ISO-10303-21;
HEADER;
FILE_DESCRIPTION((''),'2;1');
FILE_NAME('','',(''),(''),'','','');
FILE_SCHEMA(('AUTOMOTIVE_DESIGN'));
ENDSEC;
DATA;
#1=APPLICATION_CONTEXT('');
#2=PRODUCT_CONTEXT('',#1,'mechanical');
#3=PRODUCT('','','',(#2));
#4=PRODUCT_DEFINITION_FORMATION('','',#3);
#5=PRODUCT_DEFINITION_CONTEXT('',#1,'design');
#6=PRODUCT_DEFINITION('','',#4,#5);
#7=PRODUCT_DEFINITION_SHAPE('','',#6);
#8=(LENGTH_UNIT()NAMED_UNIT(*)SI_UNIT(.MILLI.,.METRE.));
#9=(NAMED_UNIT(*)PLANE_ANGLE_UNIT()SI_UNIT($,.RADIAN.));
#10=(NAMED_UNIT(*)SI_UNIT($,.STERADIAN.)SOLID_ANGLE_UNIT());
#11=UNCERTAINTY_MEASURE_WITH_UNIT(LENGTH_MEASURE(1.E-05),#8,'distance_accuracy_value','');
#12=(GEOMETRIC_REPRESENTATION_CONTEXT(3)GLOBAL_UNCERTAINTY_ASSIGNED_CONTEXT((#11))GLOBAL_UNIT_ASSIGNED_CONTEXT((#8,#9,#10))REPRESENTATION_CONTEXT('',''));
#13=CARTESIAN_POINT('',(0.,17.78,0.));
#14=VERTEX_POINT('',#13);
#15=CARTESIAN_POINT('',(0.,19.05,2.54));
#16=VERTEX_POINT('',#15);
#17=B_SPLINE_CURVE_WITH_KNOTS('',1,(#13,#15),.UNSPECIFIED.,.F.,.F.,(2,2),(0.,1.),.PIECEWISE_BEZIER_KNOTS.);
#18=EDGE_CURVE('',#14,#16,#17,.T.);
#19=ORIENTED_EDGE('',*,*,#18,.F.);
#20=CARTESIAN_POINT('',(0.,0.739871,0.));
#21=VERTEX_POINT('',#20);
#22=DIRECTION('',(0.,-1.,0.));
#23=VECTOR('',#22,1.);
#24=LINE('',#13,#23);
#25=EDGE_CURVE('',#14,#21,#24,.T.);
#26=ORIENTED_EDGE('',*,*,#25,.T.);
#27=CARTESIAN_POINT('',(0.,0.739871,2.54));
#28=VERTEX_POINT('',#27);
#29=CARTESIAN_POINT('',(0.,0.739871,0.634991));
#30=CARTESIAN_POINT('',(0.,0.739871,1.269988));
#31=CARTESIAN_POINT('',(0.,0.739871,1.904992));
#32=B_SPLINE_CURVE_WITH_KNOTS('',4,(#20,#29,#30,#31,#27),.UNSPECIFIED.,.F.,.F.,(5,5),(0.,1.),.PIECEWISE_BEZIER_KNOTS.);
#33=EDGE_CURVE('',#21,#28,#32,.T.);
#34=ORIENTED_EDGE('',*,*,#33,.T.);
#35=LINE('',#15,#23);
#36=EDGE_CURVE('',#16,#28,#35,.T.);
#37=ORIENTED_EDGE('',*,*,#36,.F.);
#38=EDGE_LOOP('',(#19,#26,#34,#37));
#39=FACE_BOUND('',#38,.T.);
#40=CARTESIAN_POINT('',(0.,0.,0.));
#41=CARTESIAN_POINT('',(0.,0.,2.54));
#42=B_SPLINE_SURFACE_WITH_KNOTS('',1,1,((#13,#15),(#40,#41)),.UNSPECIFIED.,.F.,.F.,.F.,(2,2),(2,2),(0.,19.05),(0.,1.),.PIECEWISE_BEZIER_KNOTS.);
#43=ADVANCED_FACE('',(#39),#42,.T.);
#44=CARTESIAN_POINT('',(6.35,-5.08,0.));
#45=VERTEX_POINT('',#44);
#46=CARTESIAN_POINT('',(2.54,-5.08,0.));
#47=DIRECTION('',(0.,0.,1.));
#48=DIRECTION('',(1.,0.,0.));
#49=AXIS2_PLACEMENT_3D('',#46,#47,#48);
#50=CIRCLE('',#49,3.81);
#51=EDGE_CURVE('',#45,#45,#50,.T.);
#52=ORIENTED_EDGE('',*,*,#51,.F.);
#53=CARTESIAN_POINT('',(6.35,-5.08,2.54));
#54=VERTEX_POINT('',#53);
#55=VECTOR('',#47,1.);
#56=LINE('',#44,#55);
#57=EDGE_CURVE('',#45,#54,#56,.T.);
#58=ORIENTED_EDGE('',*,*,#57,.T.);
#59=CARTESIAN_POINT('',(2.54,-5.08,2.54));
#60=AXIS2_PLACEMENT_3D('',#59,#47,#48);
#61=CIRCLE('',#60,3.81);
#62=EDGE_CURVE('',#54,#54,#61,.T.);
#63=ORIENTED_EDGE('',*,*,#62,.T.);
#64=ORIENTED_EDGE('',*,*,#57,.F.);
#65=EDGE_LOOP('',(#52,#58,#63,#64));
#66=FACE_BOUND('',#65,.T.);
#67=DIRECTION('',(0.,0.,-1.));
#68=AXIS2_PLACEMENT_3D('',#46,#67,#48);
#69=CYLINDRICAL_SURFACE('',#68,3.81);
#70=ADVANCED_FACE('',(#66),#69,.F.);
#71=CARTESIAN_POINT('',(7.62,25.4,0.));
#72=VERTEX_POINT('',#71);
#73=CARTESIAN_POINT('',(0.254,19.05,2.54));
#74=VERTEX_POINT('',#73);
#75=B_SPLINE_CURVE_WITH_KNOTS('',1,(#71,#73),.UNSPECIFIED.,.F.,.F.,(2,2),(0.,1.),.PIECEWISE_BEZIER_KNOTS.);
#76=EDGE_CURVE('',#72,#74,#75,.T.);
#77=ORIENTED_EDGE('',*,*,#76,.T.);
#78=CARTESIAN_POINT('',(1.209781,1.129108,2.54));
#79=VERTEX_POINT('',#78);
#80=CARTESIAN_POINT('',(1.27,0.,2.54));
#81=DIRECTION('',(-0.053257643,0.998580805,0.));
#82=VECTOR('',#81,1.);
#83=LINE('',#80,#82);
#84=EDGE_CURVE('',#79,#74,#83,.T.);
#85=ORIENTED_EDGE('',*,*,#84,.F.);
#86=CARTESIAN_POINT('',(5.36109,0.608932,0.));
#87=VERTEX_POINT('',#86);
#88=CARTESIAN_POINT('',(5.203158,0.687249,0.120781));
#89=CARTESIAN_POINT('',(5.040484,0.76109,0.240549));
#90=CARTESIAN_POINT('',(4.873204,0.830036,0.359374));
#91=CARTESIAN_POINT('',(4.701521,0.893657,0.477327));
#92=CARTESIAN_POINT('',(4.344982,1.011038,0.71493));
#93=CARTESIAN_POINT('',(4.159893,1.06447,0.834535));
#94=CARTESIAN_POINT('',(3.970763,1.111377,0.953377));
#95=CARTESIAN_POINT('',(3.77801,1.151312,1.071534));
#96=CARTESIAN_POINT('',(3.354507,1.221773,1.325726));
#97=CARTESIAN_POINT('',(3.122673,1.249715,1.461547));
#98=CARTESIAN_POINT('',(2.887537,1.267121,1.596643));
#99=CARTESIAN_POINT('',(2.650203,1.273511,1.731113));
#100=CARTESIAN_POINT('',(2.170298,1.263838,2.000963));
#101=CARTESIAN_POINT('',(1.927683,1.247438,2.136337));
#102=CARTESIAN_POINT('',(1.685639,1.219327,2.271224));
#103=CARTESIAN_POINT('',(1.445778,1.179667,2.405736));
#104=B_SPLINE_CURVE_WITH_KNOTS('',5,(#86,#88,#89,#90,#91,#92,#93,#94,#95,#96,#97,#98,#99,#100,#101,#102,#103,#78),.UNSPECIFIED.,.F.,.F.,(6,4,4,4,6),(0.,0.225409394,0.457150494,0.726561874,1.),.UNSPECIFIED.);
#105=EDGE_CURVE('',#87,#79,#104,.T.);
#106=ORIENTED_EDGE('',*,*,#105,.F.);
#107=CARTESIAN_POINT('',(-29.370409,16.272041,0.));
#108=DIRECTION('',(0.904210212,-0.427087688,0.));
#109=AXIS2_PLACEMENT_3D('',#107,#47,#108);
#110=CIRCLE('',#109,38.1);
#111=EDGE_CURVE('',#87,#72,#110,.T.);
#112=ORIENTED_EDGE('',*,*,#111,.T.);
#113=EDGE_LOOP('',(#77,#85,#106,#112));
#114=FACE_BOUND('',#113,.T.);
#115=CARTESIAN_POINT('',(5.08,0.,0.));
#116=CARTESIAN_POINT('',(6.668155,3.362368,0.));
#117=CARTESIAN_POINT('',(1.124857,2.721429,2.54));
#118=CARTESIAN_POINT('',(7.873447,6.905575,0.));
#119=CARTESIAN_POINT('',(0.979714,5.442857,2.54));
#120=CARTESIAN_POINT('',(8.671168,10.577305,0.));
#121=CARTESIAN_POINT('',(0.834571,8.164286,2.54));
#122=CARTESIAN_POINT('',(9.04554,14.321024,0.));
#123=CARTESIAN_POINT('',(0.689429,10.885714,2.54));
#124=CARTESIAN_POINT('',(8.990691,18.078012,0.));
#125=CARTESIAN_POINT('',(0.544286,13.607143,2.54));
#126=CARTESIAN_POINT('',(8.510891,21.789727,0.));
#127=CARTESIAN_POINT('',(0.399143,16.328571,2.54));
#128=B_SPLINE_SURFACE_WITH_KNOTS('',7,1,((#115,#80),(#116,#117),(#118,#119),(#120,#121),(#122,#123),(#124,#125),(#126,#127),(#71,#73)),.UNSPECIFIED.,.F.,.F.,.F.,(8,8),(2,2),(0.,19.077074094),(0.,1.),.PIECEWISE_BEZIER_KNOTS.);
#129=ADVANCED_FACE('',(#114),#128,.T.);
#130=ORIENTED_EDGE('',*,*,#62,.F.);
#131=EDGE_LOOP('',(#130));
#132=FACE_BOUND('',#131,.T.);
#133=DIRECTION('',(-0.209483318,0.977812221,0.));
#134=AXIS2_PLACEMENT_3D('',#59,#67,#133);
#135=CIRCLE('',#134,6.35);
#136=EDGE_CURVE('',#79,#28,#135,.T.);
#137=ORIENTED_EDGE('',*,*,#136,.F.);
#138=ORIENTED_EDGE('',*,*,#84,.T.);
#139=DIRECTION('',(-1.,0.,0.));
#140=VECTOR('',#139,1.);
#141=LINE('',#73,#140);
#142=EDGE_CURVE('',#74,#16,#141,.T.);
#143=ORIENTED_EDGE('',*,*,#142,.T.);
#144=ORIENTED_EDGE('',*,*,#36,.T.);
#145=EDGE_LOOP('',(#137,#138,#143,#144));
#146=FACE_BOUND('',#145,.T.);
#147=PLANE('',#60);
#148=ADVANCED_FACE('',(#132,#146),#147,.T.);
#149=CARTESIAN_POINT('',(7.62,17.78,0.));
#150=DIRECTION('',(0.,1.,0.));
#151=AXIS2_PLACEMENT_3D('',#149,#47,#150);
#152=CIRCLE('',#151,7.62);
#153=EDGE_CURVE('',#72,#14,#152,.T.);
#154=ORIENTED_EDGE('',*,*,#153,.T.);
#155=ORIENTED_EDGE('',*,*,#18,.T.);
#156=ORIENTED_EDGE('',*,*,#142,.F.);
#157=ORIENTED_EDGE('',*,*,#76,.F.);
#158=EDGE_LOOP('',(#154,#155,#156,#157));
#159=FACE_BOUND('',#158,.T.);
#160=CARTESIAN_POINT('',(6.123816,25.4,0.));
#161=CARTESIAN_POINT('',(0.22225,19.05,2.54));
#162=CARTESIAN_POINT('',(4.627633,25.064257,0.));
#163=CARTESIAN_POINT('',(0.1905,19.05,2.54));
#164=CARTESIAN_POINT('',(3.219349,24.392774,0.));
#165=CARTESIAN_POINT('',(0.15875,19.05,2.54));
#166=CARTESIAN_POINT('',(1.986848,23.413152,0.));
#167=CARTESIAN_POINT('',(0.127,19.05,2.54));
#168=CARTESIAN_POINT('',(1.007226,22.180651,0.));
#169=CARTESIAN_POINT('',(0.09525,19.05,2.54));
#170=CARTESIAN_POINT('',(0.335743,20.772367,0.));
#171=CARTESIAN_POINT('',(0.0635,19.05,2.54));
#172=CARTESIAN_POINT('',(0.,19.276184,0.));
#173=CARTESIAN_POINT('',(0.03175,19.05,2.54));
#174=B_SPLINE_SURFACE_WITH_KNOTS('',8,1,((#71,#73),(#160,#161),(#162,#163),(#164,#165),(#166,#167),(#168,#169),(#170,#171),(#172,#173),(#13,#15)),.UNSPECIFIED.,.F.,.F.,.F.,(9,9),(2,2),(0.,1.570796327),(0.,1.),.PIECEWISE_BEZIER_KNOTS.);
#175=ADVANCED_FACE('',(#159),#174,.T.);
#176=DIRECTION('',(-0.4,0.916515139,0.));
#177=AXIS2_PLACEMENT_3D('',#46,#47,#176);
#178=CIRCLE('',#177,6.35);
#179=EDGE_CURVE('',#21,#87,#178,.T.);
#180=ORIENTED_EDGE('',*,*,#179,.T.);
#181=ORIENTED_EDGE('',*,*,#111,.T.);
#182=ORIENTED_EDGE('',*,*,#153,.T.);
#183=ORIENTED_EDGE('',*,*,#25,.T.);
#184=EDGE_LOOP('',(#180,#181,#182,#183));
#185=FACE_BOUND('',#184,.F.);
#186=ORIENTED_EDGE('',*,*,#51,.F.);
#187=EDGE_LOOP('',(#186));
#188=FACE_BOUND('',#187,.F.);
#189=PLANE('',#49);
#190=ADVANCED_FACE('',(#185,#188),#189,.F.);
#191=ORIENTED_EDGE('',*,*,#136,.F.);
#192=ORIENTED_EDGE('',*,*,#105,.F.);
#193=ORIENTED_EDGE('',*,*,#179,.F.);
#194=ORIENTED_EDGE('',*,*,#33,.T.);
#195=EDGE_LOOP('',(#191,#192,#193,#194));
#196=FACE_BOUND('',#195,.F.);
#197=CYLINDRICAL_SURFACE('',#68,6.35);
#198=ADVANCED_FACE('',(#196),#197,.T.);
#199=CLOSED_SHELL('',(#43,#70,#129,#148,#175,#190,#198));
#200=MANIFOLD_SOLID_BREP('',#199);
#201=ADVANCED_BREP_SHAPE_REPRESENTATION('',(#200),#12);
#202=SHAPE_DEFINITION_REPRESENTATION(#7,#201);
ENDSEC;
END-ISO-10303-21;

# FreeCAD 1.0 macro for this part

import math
import FreeCAD as App
import Part
import Sketcher
from FreeCAD import Vector
Q = App.Units.Quantity

doc = App.newDocument("Part")
params = doc.addObject("Spreadsheet::Sheet", "Params")
for row, (alias, value) in enumerate([
    ("sketch1_radius", "1.5 in"),
    ("sketch1_radius2", "0.3 in"),
    ("sketch1_width", "0.2 in"),
    ("sketch1_height", "0.7 in"),
    ("sketch2_width", "0.05 in"),
    ("sketch2_width2", "0.01 in"),
    ("sketch2_height", "0.75 in"),
    ("sketch3_diameter", "0.5 in"),
    ("sketch3_diameter2", "0.3 in"),
    ("pad1_length", "0.1 in"),
], start=1):
    params.set(f"A{row}", alias)
    params.set(f"B{row}", "=" + value)
    params.setAlias(f"B{row}", alias)

body = doc.addObject("PartDesign::Body", "Body")

# Sketch on XY plane
sketch1 = body.newObject("Sketcher::SketchObject", "Sketch")
sketch1.AttachmentSupport = (doc.getObject("XY_Plane"), [""])
sketch1.MapMode = "FlatFace"
sketch1.addGeometry([
    Part.LineSegment(Vector(0, 18, 0), Vector(0, 0, 0)),
    Part.LineSegment(Vector(0, 0, 0), Vector(5, 0, 0)),
    Part.ArcOfCircle(Part.Circle(Vector(-29, 16, 0), Vector(0, 0, 1), 38), math.radians(-25), math.radians(14)),
    Part.ArcOfCircle(Part.Circle(Vector(8, 18, 0), Vector(0, 0, 1), 8), math.radians(90), math.radians(180)),
], False)
sketch1.addConstraint([
    Sketcher.Constraint("Coincident", 0, 2, 1, 1),
    Sketcher.Constraint("Coincident", 1, 2, 2, 1),
    Sketcher.Constraint("Coincident", 2, 2, 3, 1),
    Sketcher.Constraint("Tangent", 3, 2, 0, 1),
    Sketcher.Constraint("Vertical", 0),
    Sketcher.Constraint("Horizontal", 1),
    Sketcher.Constraint("Coincident", 0, 2, -1, 1),
    Sketcher.Constraint("Vertical", 3, 3, 2, 2),
    Sketcher.Constraint("Radius", 2, Q("1.5 in")),
    Sketcher.Constraint("Radius", 3, Q("0.3 in")),
    Sketcher.Constraint("DistanceX", 1, 1, 1, 2, Q("0.2 in")),
    Sketcher.Constraint("DistanceY", 0, 2, 0, 1, Q("0.7 in")),
])
sketch1.setExpression("Constraints[8]", "Params.sketch1_radius")
sketch1.setExpression("Constraints[9]", "Params.sketch1_radius2")
sketch1.setExpression("Constraints[10]", "Params.sketch1_width")
sketch1.setExpression("Constraints[11]", "Params.sketch1_height")

# Sketch on XY plane
sketch2 = body.newObject("Sketcher::SketchObject", "Sketch001")
sketch2.AttachmentSupport = (doc.getObject("XY_Plane"), [""])
sketch2.MapMode = "FlatFace"
sketch2.AttachmentOffset = App.Placement(Vector(0, 0, 0.1 * 25.4), App.Rotation())
sketch2.addGeometry([
    Part.LineSegment(Vector(0, 19.05, 0), Vector(0, 0, 0)),
    Part.LineSegment(Vector(0, 0, 0), Vector(1.27, 0, 0)),
    Part.LineSegment(Vector(1.27, 0, 0), Vector(0.25, 19.05, 0)),
    Part.LineSegment(Vector(0.25, 19.05, 0), Vector(0, 19.05, 0)),
], False)
sketch2.addConstraint([
    Sketcher.Constraint("Coincident", 0, 2, 1, 1),
    Sketcher.Constraint("Coincident", 1, 2, 2, 1),
    Sketcher.Constraint("Coincident", 2, 2, 3, 1),
    Sketcher.Constraint("Coincident", 3, 2, 0, 1),
    Sketcher.Constraint("Vertical", 0),
    Sketcher.Constraint("Horizontal", 1),
    Sketcher.Constraint("Horizontal", 3),
    Sketcher.Constraint("Coincident", 0, 2, -1, 1),
    Sketcher.Constraint("DistanceX", 1, 1, 1, 2, Q("0.05 in")),
    Sketcher.Constraint("DistanceX", 3, 2, 3, 1, Q("0.01 in")),
    Sketcher.Constraint("DistanceY", 0, 2, 0, 1, Q("0.75 in")),
])
sketch2.setExpression("Constraints[8]", "Params.sketch2_width")
sketch2.setExpression("Constraints[9]", "Params.sketch2_width2")
sketch2.setExpression("Constraints[10]", "Params.sketch2_height")

additiveloft = body.newObject("PartDesign::AdditiveLoft", "AdditiveLoft")
additiveloft.Profile = sketch1
additiveloft.Sections = [sketch2]

# Sketch on XY plane
sketch3 = body.newObject("Sketcher::SketchObject", "Sketch002")
sketch3.AttachmentSupport = (doc.getObject("XY_Plane"), [""])
sketch3.MapMode = "FlatFace"
sketch3.addGeometry([
    Part.Circle(Vector(2.5, -5.1, 0), Vector(0, 0, 1), 6.3),
    Part.Circle(Vector(2.5, -5.1, 0), Vector(0, 0, 1), 3.8),
], False)
sketch3.addConstraint([
    Sketcher.Constraint("Coincident", 1, 3, 0, 3),
    Sketcher.Constraint("Diameter", 0, Q("0.5 in")),
    Sketcher.Constraint("Diameter", 1, Q("0.3 in")),
    Sketcher.Constraint("DistanceX", -1, 1, 0, 3, Q("0.1 in")),
    Sketcher.Constraint("DistanceY", 0, 3, -1, 1, Q("0.2 in")),
])
sketch3.setExpression("Constraints[1]", "Params.sketch3_diameter")
sketch3.setExpression("Constraints[2]", "Params.sketch3_diameter2")
pad1 = body.newObject("PartDesign::Pad", "Pad")
pad1.Profile = sketch3
pad1.setExpression("Length", "Params.pad1_length")

doc.recompute()
